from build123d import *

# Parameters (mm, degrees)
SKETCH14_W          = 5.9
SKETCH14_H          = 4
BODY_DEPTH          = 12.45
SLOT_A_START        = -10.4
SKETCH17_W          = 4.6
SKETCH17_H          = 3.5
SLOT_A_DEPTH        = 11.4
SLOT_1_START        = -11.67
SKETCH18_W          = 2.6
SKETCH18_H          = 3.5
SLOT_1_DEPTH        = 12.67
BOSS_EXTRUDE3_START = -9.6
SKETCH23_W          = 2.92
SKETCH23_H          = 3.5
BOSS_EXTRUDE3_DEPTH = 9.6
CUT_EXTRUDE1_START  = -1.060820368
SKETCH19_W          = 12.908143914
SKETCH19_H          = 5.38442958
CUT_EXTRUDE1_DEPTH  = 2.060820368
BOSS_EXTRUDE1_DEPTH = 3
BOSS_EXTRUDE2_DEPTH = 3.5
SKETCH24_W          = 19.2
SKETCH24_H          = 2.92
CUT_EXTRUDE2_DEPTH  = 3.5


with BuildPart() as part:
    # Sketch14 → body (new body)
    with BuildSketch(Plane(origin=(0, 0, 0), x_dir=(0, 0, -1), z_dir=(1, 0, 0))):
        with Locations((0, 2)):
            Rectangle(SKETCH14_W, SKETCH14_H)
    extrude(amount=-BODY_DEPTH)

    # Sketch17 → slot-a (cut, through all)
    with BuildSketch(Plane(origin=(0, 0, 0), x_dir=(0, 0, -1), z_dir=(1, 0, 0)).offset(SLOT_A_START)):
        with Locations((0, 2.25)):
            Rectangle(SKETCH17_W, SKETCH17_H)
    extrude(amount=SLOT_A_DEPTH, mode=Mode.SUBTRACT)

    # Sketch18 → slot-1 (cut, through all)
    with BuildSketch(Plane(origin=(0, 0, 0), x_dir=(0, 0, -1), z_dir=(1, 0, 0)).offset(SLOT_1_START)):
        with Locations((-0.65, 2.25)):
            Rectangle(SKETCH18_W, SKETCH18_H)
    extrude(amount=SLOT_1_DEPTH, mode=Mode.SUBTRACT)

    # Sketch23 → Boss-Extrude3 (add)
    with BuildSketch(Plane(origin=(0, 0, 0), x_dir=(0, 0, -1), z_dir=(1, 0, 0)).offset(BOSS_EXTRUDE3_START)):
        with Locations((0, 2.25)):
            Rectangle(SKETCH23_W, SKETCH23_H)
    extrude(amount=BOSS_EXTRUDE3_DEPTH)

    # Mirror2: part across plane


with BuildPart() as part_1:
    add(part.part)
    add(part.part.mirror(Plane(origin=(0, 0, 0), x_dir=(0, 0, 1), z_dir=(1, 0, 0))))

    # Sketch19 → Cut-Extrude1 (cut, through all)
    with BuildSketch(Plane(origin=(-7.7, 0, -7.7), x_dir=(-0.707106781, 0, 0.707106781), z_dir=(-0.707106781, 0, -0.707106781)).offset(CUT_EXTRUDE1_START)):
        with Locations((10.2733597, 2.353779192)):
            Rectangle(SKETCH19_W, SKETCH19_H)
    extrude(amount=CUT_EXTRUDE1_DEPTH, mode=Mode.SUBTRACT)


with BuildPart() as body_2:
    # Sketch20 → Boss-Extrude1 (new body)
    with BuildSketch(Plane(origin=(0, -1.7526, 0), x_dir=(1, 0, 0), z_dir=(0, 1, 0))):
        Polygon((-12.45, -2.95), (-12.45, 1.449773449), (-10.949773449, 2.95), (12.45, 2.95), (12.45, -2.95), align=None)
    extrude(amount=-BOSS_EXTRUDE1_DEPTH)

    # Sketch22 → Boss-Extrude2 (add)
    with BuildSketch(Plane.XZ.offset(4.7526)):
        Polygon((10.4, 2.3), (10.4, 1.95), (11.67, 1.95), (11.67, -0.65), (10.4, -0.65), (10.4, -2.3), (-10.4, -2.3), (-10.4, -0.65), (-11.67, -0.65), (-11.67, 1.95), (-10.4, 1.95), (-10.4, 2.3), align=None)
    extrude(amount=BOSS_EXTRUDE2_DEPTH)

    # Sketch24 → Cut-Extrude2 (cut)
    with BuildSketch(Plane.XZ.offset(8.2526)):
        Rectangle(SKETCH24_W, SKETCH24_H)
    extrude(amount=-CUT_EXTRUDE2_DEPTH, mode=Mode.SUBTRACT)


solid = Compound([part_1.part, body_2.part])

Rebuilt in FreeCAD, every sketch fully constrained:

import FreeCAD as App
import Part
import Sketcher
Q = App.Units.Quantity

doc = App.newDocument("Part")
body = doc.addObject("PartDesign::Body", "Body")

sketch1 = body.newObject("Sketcher::SketchObject", "Sketch")
sketch1.AttachmentSupport = (doc.getObject("YZ_Plane"), [""])
sketch1.MapMode = "FlatFace"
sketch1.addGeometry([
    Part.LineSegment(App.Vector(4, 2.95, 0), App.Vector(0, 2.95, 0)),
    Part.LineSegment(App.Vector(0, 2.95, 0), App.Vector(0, -2.95, 0)),
    Part.LineSegment(App.Vector(0, -2.95, 0), App.Vector(4, -2.95, 0)),
    Part.LineSegment(App.Vector(4, -2.95, 0), App.Vector(4, 2.95, 0)),
], False)
sketch1.addConstraint([
    Sketcher.Constraint("Coincident", 0, 2, 1, 1),
    Sketcher.Constraint("Coincident", 1, 2, 2, 1),
    Sketcher.Constraint("Coincident", 2, 2, 3, 1),
    Sketcher.Constraint("Coincident", 3, 2, 0, 1),
    Sketcher.Constraint("Horizontal", 0),
    Sketcher.Constraint("Vertical", 1),
    Sketcher.Constraint("Horizontal", 2),
    Sketcher.Constraint("Vertical", 3),
    Sketcher.Constraint("Symmetric", 0, 2, 1, 2, -1, 1),
    Sketcher.Constraint("DistanceX", 0, 2, 0, 1, 4.0),
    Sketcher.Constraint("DistanceY", 1, 2, 1, 1, 5.9),
])
pad1 = body.newObject("PartDesign::Pad", "Pad")
pad1.Profile = sketch1
pad1.Length = 12.45
pad1.Reversed = True

sketch2 = body.newObject("Sketcher::SketchObject", "Sketch001")
sketch2.AttachmentSupport = (doc.getObject("YZ_Plane"), [""])
sketch2.MapMode = "FlatFace"
sketch2.AttachmentOffset = App.Placement(App.Vector(0, 0, -10.4), App.Rotation())
sketch2.addGeometry([
    Part.LineSegment(App.Vector(4, 2.3, 0), App.Vector(0.5, 2.3, 0)),
    Part.LineSegment(App.Vector(0.5, 2.3, 0), App.Vector(0.5, -2.3, 0)),
    Part.LineSegment(App.Vector(0.5, -2.3, 0), App.Vector(4, -2.3, 0)),
    Part.LineSegment(App.Vector(4, -2.3, 0), App.Vector(4, 2.3, 0)),
], False)
sketch2.addConstraint([
    Sketcher.Constraint("Coincident", 0, 2, 1, 1),
    Sketcher.Constraint("Coincident", 1, 2, 2, 1),
    Sketcher.Constraint("Coincident", 2, 2, 3, 1),
    Sketcher.Constraint("Coincident", 3, 2, 0, 1),
    Sketcher.Constraint("Horizontal", 0),
    Sketcher.Constraint("Vertical", 1),
    Sketcher.Constraint("Horizontal", 2),
    Sketcher.Constraint("Vertical", 3),
    Sketcher.Constraint("DistanceX", 0, 2, 0, 1, 3.5),
    Sketcher.Constraint("DistanceY", 1, 2, 1, 1, 4.6),
    Sketcher.Constraint("DistanceX", -1, 1, 2, 2, 4.0),
    Sketcher.Constraint("DistanceY", -1, 1, 0, 2, 2.3),
])
pocket1 = body.newObject("PartDesign::Pocket", "Pocket")
pocket1.Profile = sketch2
pocket1.Type = "ThroughAll"
pocket1.Reversed = True

sketch3 = body.newObject("Sketcher::SketchObject", "Sketch002")
sketch3.AttachmentSupport = (doc.getObject("YZ_Plane"), [""])
sketch3.MapMode = "FlatFace"
sketch3.AttachmentOffset = App.Placement(App.Vector(0, 0, -11.67), App.Rotation())
sketch3.addGeometry([
    Part.LineSegment(App.Vector(4, 1.95, 0), App.Vector(0.5, 1.95, 0)),
    Part.LineSegment(App.Vector(0.5, 1.95, 0), App.Vector(0.5, -0.65, 0)),
    Part.LineSegment(App.Vector(0.5, -0.65, 0), App.Vector(4, -0.65, 0)),
    Part.LineSegment(App.Vector(4, -0.65, 0), App.Vector(4, 1.95, 0)),
], False)
sketch3.addConstraint([
    Sketcher.Constraint("Coincident", 0, 2, 1, 1),
    Sketcher.Constraint("Coincident", 1, 2, 2, 1),
    Sketcher.Constraint("Coincident", 2, 2, 3, 1),
    Sketcher.Constraint("Coincident", 3, 2, 0, 1),
    Sketcher.Constraint("Horizontal", 0),
    Sketcher.Constraint("Vertical", 1),
    Sketcher.Constraint("Horizontal", 2),
    Sketcher.Constraint("Vertical", 3),
    Sketcher.Constraint("DistanceX", 0, 2, 0, 1, 3.5),
    Sketcher.Constraint("DistanceY", 1, 2, 1, 1, 2.6),
    Sketcher.Constraint("DistanceX", -1, 1, 2, 2, 4.0),
    Sketcher.Constraint("DistanceY", -1, 1, 0, 2, 1.95),
])
pocket2 = body.newObject("PartDesign::Pocket", "Pocket001")
pocket2.Profile = sketch3
pocket2.Type = "ThroughAll"
pocket2.Reversed = True

sketch4 = body.newObject("Sketcher::SketchObject", "Sketch003")
sketch4.AttachmentSupport = (doc.getObject("YZ_Plane"), [""])
sketch4.MapMode = "FlatFace"
sketch4.AttachmentOffset = App.Placement(App.Vector(0, 0, -9.6), App.Rotation())
sketch4.addGeometry([
    Part.LineSegment(App.Vector(4, 1.46, 0), App.Vector(0.5, 1.46, 0)),
    Part.LineSegment(App.Vector(0.5, 1.46, 0), App.Vector(0.5, -1.46, 0)),
    Part.LineSegment(App.Vector(0.5, -1.46, 0), App.Vector(4, -1.46, 0)),
    Part.LineSegment(App.Vector(4, -1.46, 0), App.Vector(4, 1.46, 0)),
], False)
sketch4.addConstraint([
    Sketcher.Constraint("Coincident", 0, 2, 1, 1),
    Sketcher.Constraint("Coincident", 1, 2, 2, 1),
    Sketcher.Constraint("Coincident", 2, 2, 3, 1),
    Sketcher.Constraint("Coincident", 3, 2, 0, 1),
    Sketcher.Constraint("Horizontal", 0),
    Sketcher.Constraint("Vertical", 1),
    Sketcher.Constraint("Horizontal", 2),
    Sketcher.Constraint("Vertical", 3),
    Sketcher.Constraint("DistanceX", 0, 2, 0, 1, 3.5),
    Sketcher.Constraint("DistanceX", -1, 1, 2, 2, 4.0),
    Sketcher.Constraint("DistanceY", 1, 2, 1, 1, 2.92),
    Sketcher.Constraint("DistanceY", -1, 1, 0, 2, 1.46),
])
pad2 = body.newObject("PartDesign::Pad", "Pad001")
pad2.Profile = sketch4
pad2.Length = 9.6
body2 = doc.addObject("PartDesign::Body", "Body001")
doc.recompute()

body2.BaseFeature = body
doc.recompute()

mirroring = doc.addObject("Part::Mirroring", "Mirroring")
mirroring.Source = body
mirroring.Base = App.Vector(0, 0, 0)
mirroring.Normal = App.Vector(1, 0, 0)
body3 = doc.addObject("PartDesign::Body", "Body002")
body3.BaseFeature = mirroring
boolean = body2.newObject("PartDesign::Boolean", "Boolean")
boolean.Type = "Fuse"
boolean.addObjects([body3])
doc.recompute()

sketch5 = body2.newObject("Sketcher::SketchObject", "Sketch004")
sketch5.Placement = App.Placement(App.Vector(-6.949887, 0, -6.949887), App.Rotation(App.Vector(-0.707106781, 0, 0.707106781), App.Vector(0, 0.999999999, 0), App.Vector(-0.707106781, 0, -0.707106781), "ZXY"))
sketch5.addGeometry([
    Part.LineSegment(App.Vector(3.819288, 5.045994, 0), App.Vector(3.819288, -0.338436, 0)),
    Part.LineSegment(App.Vector(3.819288, -0.338436, 0), App.Vector(16.727432, -0.338436, 0)),
    Part.LineSegment(App.Vector(16.727432, -0.338436, 0), App.Vector(16.727432, 5.045994, 0)),
    Part.LineSegment(App.Vector(16.727432, 5.045994, 0), App.Vector(3.819288, 5.045994, 0)),
], False)
sketch5.addConstraint([
    Sketcher.Constraint("Coincident", 0, 2, 1, 1),
    Sketcher.Constraint("Coincident", 1, 2, 2, 1),
    Sketcher.Constraint("Coincident", 2, 2, 3, 1),
    Sketcher.Constraint("Coincident", 3, 2, 0, 1),
    Sketcher.Constraint("Vertical", 0),
    Sketcher.Constraint("Horizontal", 1),
    Sketcher.Constraint("Vertical", 2),
    Sketcher.Constraint("Horizontal", 3),
    Sketcher.Constraint("DistanceY", 0, 2, 0, 1, 5.38443),
    Sketcher.Constraint("DistanceX", 1, 1, 1, 2, 12.908144),
    Sketcher.Constraint("DistanceX", -1, 1, 1, 2, 16.727432),
    Sketcher.Constraint("DistanceY", 0, 2, -1, 1, 0.338436),
])
pocket3 = body2.newObject("PartDesign::Pocket", "Pocket002")
pocket3.Profile = sketch5
pocket3.Type = "ThroughAll"
pocket3.Reversed = True
body4 = doc.addObject("PartDesign::Body", "Body003")

sketch6 = body4.newObject("Sketcher::SketchObject", "Sketch005")
sketch6.AttachmentSupport = (doc.getObject("XZ_Plane003"), [""])
sketch6.MapMode = "FlatFace"
sketch6.AttachmentOffset = App.Placement(App.Vector(0, 0, 1.7526), App.Rotation())
sketch6.addGeometry([
    Part.LineSegment(App.Vector(-12.45, -1.449773, 0), App.Vector(-12.45, 2.95, 0)),
    Part.LineSegment(App.Vector(-12.45, 2.95, 0), App.Vector(12.45, 2.95, 0)),
    Part.LineSegment(App.Vector(12.45, 2.95, 0), App.Vector(12.45, -2.95, 0)),
    Part.LineSegment(App.Vector(12.45, -2.95, 0), App.Vector(-10.949773, -2.95, 0)),
    Part.LineSegment(App.Vector(-10.949773, -2.95, 0), App.Vector(-12.45, -1.449773, 0)),
], False)
sketch6.addConstraint([
    Sketcher.Constraint("Coincident", 0, 2, 1, 1),
    Sketcher.Constraint("Coincident", 1, 2, 2, 1),
    Sketcher.Constraint("Coincident", 2, 2, 3, 1),
    Sketcher.Constraint("Coincident", 3, 2, 4, 1),
    Sketcher.Constraint("Coincident", 4, 2, 0, 1),
    Sketcher.Constraint("Vertical", 0),
    Sketcher.Constraint("Horizontal", 1),
    Sketcher.Constraint("Vertical", 2),
    Sketcher.Constraint("Horizontal", 3),
    Sketcher.Constraint("Symmetric", 0, 2, 2, 2, -1, 1),
    Sketcher.Constraint("Angle", 4, Q("135 deg")),
    Sketcher.Constraint("DistanceX", 1, 1, 1, 2, 24.9),
    Sketcher.Constraint("DistanceY", 2, 2, 2, 1, 5.9),
    Sketcher.Constraint("Distance", 4, 2.121641),
])
pad3 = body4.newObject("PartDesign::Pad", "Pad002")
pad3.Profile = sketch6
pad3.Length = 3

sketch7 = body4.newObject("Sketcher::SketchObject", "Sketch006")
sketch7.AttachmentSupport = (doc.getObject("XZ_Plane003"), [""])
sketch7.MapMode = "FlatFace"
sketch7.AttachmentOffset = App.Placement(App.Vector(0, 0, 4.7526), App.Rotation())
sketch7.addGeometry([
    Part.LineSegment(App.Vector(10.4, 1.95, 0), App.Vector(10.4, 2.3, 0)),
    Part.LineSegment(App.Vector(10.4, 2.3, 0), App.Vector(-10.4, 2.3, 0)),
    Part.LineSegment(App.Vector(-10.4, 2.3, 0), App.Vector(-10.4, 1.95, 0)),
    Part.LineSegment(App.Vector(-10.4, 1.95, 0), App.Vector(-11.67, 1.95, 0)),
    Part.LineSegment(App.Vector(-11.67, 1.95, 0), App.Vector(-11.67, -0.65, 0)),
    Part.LineSegment(App.Vector(-11.67, -0.65, 0), App.Vector(-10.4, -0.65, 0)),
    Part.LineSegment(App.Vector(-10.4, -0.65, 0), App.Vector(-10.4, -2.3, 0)),
    Part.LineSegment(App.Vector(-10.4, -2.3, 0), App.Vector(10.4, -2.3, 0)),
    Part.LineSegment(App.Vector(10.4, -2.3, 0), App.Vector(10.4, -0.65, 0)),
    Part.LineSegment(App.Vector(10.4, -0.65, 0), App.Vector(11.67, -0.65, 0)),
    Part.LineSegment(App.Vector(11.67, -0.65, 0), App.Vector(11.67, 1.95, 0)),
    Part.LineSegment(App.Vector(11.67, 1.95, 0), App.Vector(10.4, 1.95, 0)),
], False)
sketch7.addConstraint([
    Sketcher.Constraint("Coincident", 0, 2, 1, 1),
    Sketcher.Constraint("Coincident", 1, 2, 2, 1),
    Sketcher.Constraint("Coincident", 2, 2, 3, 1),
    Sketcher.Constraint("Coincident", 3, 2, 4, 1),
    Sketcher.Constraint("Coincident", 4, 2, 5, 1),
    Sketcher.Constraint("Coincident", 5, 2, 6, 1),
    Sketcher.Constraint("Coincident", 6, 2, 7, 1),
    Sketcher.Constraint("Coincident", 7, 2, 8, 1),
    Sketcher.Constraint("Coincident", 8, 2, 9, 1),
    Sketcher.Constraint("Coincident", 9, 2, 10, 1),
    Sketcher.Constraint("Coincident", 10, 2, 11, 1),
    Sketcher.Constraint("Coincident", 11, 2, 0, 1),
    Sketcher.Constraint("Vertical", 0),
    Sketcher.Constraint("Horizontal", 1),
    Sketcher.Constraint("Vertical", 2),
    Sketcher.Constraint("Horizontal", 3),
    Sketcher.Constraint("Vertical", 4),
    Sketcher.Constraint("Horizontal", 5),
    Sketcher.Constraint("Vertical", 6),
    Sketcher.Constraint("Horizontal", 7),
    Sketcher.Constraint("Vertical", 8),
    Sketcher.Constraint("Horizontal", 9),
    Sketcher.Constraint("Vertical", 10),
    Sketcher.Constraint("Horizontal", 11),
    Sketcher.Constraint("Symmetric", 0, 2, 6, 2, -1, 1),
    Sketcher.Constraint("Symmetric", 5, 2, 8, 2, -2),
    Sketcher.Constraint("Symmetric", 3, 2, 10, 2, -2),
    Sketcher.Constraint("Vertical", 2, 2, 5, 2),
    Sketcher.Constraint("DistanceX", 1, 2, 1, 1, 20.8),
    Sketcher.Constraint("DistanceY", 4, 2, 4, 1, 2.6),
    Sketcher.Constraint("DistanceX", 3, 2, 3, 1, 1.27),
    Sketcher.Constraint("DistanceY", 0, 1, 0, 2, 0.35),
    Sketcher.Constraint("DistanceY", 6, 2, 6, 1, 1.65),
])
pad4 = body4.newObject("PartDesign::Pad", "Pad003")
pad4.Profile = sketch7
pad4.Length = 3.5

sketch8 = body4.newObject("Sketcher::SketchObject", "Sketch007")
sketch8.AttachmentSupport = (doc.getObject("XZ_Plane003"), [""])
sketch8.MapMode = "FlatFace"
sketch8.AttachmentOffset = App.Placement(App.Vector(0, 0, 8.2526), App.Rotation())
sketch8.addGeometry([
    Part.LineSegment(App.Vector(-9.6, 1.46, 0), App.Vector(-9.6, -1.46, 0)),
    Part.LineSegment(App.Vector(-9.6, -1.46, 0), App.Vector(9.6, -1.46, 0)),
    Part.LineSegment(App.Vector(9.6, -1.46, 0), App.Vector(9.6, 1.46, 0)),
    Part.LineSegment(App.Vector(9.6, 1.46, 0), App.Vector(-9.6, 1.46, 0)),
], False)
sketch8.addConstraint([
    Sketcher.Constraint("Coincident", 0, 2, 1, 1),
    Sketcher.Constraint("Coincident", 1, 2, 2, 1),
    Sketcher.Constraint("Coincident", 2, 2, 3, 1),
    Sketcher.Constraint("Coincident", 3, 2, 0, 1),
    Sketcher.Constraint("Vertical", 0),
    Sketcher.Constraint("Horizontal", 1),
    Sketcher.Constraint("Vertical", 2),
    Sketcher.Constraint("Horizontal", 3),
    Sketcher.Constraint("Symmetric", 0, 2, 2, 2, -1, 1),
    Sketcher.Constraint("DistanceX", 1, 1, 1, 2, 19.2),
    Sketcher.Constraint("DistanceY", 0, 2, 0, 1, 2.92),
])
pocket4 = body4.newObject("PartDesign::Pocket", "Pocket003")
pocket4.Profile = sketch8
pocket4.Length = 3.5
mirroring.Visibility = False

doc.recompute()
